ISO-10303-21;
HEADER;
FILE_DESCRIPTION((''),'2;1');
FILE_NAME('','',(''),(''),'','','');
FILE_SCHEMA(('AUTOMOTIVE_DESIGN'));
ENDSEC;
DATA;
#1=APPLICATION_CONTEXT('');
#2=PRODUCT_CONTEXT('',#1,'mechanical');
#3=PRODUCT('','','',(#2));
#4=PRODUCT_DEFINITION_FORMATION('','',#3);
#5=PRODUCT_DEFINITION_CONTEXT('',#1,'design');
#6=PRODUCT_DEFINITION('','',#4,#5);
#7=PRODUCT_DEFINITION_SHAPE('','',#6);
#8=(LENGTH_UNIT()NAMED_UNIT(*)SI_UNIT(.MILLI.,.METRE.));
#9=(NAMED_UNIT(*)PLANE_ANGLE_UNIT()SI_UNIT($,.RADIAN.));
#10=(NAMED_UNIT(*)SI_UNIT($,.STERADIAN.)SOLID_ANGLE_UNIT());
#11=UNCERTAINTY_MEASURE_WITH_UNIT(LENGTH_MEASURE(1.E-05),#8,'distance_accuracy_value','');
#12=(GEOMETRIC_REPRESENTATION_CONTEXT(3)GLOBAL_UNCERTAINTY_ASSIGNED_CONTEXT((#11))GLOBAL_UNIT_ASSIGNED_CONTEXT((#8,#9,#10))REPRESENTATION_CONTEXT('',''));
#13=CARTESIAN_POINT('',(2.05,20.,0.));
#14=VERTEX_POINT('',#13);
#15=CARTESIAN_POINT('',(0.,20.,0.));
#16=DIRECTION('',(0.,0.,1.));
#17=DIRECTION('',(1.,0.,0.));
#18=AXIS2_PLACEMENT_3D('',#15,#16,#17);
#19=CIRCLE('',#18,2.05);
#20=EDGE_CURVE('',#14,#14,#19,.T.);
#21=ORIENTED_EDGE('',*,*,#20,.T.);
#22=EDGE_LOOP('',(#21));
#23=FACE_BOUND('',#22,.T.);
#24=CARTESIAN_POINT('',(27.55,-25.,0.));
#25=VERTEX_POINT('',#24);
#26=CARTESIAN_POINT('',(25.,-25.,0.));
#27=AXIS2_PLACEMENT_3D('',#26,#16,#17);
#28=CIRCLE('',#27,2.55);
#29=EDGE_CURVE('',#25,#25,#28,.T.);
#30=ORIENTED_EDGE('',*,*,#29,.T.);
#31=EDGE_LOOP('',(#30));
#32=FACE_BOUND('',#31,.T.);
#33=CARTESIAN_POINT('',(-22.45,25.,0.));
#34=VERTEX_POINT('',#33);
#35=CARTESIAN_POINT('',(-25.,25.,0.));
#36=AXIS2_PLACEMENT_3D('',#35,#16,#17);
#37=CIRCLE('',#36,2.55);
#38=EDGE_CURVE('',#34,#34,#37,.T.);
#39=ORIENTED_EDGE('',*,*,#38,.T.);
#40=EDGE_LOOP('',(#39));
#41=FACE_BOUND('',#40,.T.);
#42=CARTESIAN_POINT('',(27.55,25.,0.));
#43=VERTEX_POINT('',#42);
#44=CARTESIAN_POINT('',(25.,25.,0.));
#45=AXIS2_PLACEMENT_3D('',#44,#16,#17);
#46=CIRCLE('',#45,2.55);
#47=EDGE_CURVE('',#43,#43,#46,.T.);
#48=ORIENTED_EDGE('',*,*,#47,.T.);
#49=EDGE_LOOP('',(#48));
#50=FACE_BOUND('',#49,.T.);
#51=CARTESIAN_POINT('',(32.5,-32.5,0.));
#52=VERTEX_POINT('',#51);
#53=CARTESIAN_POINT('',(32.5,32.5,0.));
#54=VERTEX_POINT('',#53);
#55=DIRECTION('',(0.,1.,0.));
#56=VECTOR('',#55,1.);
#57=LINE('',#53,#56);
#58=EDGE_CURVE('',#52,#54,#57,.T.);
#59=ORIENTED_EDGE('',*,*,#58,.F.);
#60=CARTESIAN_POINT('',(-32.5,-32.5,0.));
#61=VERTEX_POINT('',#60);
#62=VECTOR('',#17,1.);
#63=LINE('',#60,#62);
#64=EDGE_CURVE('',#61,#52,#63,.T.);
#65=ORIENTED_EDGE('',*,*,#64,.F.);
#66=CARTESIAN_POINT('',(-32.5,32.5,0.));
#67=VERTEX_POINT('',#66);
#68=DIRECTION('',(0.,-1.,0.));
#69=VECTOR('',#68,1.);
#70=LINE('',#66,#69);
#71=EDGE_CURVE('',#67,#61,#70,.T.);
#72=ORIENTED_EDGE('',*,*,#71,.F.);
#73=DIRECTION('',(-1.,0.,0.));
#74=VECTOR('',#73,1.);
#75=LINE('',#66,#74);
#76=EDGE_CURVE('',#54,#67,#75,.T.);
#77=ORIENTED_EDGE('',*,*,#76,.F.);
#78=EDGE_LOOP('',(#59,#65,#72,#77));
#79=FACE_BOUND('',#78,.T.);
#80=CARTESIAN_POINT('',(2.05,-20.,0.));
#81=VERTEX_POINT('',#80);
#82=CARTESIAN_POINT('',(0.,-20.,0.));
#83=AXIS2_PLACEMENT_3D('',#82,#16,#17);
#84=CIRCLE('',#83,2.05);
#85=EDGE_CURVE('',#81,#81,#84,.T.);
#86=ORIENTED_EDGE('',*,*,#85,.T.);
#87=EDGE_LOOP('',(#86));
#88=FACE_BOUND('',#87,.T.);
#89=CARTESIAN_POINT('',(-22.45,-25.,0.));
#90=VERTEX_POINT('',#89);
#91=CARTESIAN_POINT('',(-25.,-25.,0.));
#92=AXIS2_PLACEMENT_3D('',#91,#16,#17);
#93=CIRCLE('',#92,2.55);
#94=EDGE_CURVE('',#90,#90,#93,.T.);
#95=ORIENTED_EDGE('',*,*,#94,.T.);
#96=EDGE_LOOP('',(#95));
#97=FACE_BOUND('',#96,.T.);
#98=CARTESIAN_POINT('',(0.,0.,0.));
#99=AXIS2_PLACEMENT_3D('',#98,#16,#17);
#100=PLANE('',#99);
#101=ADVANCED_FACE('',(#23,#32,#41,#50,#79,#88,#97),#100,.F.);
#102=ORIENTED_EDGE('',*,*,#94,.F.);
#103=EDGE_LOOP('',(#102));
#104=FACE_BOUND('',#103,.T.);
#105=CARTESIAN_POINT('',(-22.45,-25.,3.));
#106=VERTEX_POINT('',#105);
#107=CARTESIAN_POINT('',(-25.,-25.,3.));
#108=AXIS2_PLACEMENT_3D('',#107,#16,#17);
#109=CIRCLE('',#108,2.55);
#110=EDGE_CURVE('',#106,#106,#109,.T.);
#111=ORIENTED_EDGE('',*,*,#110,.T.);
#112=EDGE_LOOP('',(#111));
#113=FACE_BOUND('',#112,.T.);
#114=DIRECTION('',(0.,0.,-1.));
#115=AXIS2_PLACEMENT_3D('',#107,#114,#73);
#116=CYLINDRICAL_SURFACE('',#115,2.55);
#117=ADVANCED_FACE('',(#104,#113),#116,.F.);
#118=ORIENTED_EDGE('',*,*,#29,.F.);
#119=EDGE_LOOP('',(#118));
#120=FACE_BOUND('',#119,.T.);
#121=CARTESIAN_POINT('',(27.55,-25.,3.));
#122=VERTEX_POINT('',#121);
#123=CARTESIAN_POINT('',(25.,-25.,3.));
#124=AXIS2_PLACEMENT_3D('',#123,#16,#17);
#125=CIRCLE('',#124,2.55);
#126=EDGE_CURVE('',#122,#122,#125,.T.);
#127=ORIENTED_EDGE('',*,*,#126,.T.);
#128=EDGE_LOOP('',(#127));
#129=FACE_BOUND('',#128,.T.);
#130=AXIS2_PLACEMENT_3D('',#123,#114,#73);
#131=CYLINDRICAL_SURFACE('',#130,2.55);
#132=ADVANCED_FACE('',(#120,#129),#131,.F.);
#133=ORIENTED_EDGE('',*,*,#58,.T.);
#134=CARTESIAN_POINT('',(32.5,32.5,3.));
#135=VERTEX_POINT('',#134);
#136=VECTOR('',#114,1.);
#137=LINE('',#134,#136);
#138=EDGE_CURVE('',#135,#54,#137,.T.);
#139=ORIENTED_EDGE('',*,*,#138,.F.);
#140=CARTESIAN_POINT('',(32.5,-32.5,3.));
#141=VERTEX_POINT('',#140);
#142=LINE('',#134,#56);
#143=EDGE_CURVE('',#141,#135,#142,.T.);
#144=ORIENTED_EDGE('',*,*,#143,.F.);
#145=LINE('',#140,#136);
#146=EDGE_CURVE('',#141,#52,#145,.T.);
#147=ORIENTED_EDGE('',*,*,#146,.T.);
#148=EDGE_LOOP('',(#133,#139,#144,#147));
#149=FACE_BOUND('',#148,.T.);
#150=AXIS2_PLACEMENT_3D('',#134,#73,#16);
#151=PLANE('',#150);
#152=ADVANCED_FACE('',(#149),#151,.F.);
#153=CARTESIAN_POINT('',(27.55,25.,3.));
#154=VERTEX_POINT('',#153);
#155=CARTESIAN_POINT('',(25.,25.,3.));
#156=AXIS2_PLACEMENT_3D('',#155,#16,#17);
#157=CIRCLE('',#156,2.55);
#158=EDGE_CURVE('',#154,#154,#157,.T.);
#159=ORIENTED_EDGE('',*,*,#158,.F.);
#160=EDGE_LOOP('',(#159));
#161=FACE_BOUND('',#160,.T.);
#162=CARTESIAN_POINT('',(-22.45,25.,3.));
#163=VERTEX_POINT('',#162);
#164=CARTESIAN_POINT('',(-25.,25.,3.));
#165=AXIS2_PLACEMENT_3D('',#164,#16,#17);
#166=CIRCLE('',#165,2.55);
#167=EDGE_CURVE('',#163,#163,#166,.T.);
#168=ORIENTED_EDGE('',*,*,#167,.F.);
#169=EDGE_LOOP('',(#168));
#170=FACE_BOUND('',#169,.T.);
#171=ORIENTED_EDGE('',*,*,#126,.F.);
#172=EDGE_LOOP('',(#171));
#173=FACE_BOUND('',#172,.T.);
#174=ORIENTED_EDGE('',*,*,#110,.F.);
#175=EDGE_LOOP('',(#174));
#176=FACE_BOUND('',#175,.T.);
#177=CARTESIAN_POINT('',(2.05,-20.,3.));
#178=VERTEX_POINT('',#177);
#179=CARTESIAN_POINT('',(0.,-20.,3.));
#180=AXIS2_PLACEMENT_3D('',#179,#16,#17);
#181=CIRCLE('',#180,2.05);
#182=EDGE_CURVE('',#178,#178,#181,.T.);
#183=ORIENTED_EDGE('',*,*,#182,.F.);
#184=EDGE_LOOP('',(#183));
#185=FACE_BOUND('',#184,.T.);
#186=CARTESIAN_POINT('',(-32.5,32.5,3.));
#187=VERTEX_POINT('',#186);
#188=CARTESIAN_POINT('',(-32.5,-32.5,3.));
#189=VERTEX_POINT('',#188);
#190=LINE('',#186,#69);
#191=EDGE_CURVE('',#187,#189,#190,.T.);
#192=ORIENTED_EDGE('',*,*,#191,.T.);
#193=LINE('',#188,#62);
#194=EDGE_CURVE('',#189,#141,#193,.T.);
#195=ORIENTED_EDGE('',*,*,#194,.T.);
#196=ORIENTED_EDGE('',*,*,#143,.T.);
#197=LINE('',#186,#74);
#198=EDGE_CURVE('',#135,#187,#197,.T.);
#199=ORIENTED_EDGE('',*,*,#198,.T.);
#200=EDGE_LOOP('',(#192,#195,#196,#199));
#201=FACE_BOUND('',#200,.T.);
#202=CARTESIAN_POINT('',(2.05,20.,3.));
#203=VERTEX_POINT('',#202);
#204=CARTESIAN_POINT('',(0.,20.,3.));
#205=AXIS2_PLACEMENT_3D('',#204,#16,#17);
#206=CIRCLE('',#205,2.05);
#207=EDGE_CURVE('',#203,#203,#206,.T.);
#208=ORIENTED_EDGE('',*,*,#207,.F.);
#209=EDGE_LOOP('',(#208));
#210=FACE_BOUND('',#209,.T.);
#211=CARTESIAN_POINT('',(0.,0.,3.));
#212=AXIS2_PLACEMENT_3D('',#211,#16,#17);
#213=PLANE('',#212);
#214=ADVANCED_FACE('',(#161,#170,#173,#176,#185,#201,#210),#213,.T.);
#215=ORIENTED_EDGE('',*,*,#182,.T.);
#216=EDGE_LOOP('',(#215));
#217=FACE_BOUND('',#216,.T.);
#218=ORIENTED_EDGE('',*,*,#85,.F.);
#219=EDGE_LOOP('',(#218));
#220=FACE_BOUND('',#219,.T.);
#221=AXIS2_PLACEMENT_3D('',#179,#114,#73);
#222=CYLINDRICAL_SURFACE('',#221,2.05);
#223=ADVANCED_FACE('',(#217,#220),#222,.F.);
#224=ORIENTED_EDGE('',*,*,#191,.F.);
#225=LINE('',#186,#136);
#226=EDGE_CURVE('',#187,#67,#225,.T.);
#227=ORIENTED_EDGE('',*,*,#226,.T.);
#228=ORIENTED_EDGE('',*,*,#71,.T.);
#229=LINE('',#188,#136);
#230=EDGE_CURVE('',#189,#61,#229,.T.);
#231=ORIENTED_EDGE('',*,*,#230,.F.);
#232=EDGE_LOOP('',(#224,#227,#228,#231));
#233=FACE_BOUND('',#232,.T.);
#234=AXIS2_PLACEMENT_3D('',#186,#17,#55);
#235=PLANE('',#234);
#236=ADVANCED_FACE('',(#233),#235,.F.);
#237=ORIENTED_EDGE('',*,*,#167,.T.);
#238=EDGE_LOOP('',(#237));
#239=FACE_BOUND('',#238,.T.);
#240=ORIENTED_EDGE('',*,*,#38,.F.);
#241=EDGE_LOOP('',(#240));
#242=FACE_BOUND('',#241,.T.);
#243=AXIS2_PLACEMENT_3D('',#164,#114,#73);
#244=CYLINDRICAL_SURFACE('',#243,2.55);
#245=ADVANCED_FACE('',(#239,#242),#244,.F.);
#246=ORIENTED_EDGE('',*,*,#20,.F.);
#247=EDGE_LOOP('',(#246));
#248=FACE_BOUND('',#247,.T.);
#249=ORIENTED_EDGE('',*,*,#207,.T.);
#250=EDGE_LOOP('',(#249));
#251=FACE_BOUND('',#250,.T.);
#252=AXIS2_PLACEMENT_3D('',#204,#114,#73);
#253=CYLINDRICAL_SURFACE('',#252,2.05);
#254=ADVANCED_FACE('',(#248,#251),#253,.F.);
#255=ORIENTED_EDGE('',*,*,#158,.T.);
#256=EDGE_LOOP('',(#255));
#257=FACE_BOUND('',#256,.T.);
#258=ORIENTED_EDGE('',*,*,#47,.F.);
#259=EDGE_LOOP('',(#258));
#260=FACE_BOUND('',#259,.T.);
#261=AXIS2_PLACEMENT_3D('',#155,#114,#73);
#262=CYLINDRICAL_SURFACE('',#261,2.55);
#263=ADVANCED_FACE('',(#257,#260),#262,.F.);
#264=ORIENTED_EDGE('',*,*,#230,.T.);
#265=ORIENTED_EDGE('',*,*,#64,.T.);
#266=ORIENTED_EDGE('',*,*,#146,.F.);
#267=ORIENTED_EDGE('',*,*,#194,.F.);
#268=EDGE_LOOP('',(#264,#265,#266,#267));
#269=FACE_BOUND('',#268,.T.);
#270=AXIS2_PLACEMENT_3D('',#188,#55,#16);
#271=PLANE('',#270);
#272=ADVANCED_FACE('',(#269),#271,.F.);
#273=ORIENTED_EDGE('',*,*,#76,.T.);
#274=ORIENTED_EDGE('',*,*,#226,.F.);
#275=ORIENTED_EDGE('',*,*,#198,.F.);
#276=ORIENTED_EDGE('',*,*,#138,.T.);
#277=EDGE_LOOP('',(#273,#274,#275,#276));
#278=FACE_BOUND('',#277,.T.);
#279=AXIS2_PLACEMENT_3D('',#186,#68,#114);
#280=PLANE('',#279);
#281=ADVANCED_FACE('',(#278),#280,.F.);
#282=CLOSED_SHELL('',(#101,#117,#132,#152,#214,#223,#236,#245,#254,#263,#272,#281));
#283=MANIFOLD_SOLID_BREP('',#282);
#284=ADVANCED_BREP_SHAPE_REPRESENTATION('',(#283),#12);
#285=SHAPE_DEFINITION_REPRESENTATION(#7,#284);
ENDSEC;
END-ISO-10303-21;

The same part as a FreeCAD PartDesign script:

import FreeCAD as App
import Part
import Sketcher

V = App.Vector

doc = App.newDocument("Part")
body = doc.addObject("PartDesign::Body", "Body")

sketch1 = body.newObject("Sketcher::SketchObject", "Sketch")
sketch1.AttachmentSupport = (doc.getObject("XY_Plane"), [""])
sketch1.MapMode = "FlatFace"
sketch1.addGeometry(Part.LineSegment(V(-32.5, 32.5, 0), V(-32.5, -32.5, 0)), False)
sketch1.addGeometry(Part.LineSegment(V(-32.5, -32.5, 0), V(32.5, -32.5, 0)), False)
sketch1.addGeometry(Part.LineSegment(V(32.5, -32.5, 0), V(32.5, 32.5, 0)), False)
sketch1.addGeometry(Part.LineSegment(V(32.5, 32.5, 0), V(-32.5, 32.5, 0)), False)
sketch1.addGeometry(Part.Circle(V(-25, -25, 0), V(0, 0, 1), 2.55), False)
sketch1.addGeometry(Part.Circle(V(0, -20, 0), V(0, 0, 1), 2.05), False)
sketch1.addGeometry(Part.Circle(V(25, -25, 0), V(0, 0, 1), 2.55), False)
sketch1.addGeometry(Part.Circle(V(-25, 25, 0), V(0, 0, 1), 2.55), False)
sketch1.addGeometry(Part.Circle(V(0, 20, 0), V(0, 0, 1), 2.05), False)
sketch1.addGeometry(Part.Circle(V(25, 25, 0), V(0, 0, 1), 2.55), False)
sketch1.addConstraint(Sketcher.Constraint("Coincident", 0, 2, 1, 1))
sketch1.addConstraint(Sketcher.Constraint("Coincident", 1, 2, 2, 1))
sketch1.addConstraint(Sketcher.Constraint("Coincident", 2, 2, 3, 1))
sketch1.addConstraint(Sketcher.Constraint("Coincident", 3, 2, 0, 1))
sketch1.addConstraint(Sketcher.Constraint("Vertical", 0))
sketch1.addConstraint(Sketcher.Constraint("Horizontal", 1))
sketch1.addConstraint(Sketcher.Constraint("Vertical", 2))
sketch1.addConstraint(Sketcher.Constraint("Horizontal", 3))
sketch1.addConstraint(Sketcher.Constraint("Equal", 4, 6))
sketch1.addConstraint(Sketcher.Constraint("Equal", 6, 7))
sketch1.addConstraint(Sketcher.Constraint("Equal", 5, 8))
sketch1.addConstraint(Sketcher.Constraint("Equal", 7, 9))
sketch1.addConstraint(Sketcher.Constraint("Symmetric", 6, 3, 7, 3, -1, 1))
sketch1.addConstraint(Sketcher.Constraint("Symmetric", 5, 3, 8, 3, -1, 1))
sketch1.addConstraint(Sketcher.Constraint("Symmetric", 4, 3, 9, 3, -1, 1))
sketch1.addConstraint(Sketcher.Constraint("Symmetric", 0, 2, 2, 2, -1, 1))
sketch1.addConstraint(Sketcher.Constraint("Symmetric", 4, 3, 6, 3, -2))
sketch1.addConstraint(Sketcher.Constraint("PointOnObject", 5, 3, -2))
sketch1.addConstraint(Sketcher.Constraint("Equal", 3, 0))
sketch1.addConstraint(Sketcher.Constraint("Diameter", 4, 5.1))
sketch1.addConstraint(Sketcher.Constraint("Diameter", 5, 4.1))
sketch1.addConstraint(Sketcher.Constraint("DistanceX", 1, 1, 1, 2, 65.0))
sketch1.addConstraint(Sketcher.Constraint("DistanceX", 4, 3, -1, 1, 25.0))
sketch1.addConstraint(Sketcher.Constraint("DistanceY", 4, 3, -1, 1, 25.0))
sketch1.addConstraint(Sketcher.Constraint("DistanceY", 5, 3, -1, 1, 20.0))
pad1 = body.newObject("PartDesign::Pad", "Pad")
pad1.Profile = sketch1
pad1.Length = 3

doc.recompute()
